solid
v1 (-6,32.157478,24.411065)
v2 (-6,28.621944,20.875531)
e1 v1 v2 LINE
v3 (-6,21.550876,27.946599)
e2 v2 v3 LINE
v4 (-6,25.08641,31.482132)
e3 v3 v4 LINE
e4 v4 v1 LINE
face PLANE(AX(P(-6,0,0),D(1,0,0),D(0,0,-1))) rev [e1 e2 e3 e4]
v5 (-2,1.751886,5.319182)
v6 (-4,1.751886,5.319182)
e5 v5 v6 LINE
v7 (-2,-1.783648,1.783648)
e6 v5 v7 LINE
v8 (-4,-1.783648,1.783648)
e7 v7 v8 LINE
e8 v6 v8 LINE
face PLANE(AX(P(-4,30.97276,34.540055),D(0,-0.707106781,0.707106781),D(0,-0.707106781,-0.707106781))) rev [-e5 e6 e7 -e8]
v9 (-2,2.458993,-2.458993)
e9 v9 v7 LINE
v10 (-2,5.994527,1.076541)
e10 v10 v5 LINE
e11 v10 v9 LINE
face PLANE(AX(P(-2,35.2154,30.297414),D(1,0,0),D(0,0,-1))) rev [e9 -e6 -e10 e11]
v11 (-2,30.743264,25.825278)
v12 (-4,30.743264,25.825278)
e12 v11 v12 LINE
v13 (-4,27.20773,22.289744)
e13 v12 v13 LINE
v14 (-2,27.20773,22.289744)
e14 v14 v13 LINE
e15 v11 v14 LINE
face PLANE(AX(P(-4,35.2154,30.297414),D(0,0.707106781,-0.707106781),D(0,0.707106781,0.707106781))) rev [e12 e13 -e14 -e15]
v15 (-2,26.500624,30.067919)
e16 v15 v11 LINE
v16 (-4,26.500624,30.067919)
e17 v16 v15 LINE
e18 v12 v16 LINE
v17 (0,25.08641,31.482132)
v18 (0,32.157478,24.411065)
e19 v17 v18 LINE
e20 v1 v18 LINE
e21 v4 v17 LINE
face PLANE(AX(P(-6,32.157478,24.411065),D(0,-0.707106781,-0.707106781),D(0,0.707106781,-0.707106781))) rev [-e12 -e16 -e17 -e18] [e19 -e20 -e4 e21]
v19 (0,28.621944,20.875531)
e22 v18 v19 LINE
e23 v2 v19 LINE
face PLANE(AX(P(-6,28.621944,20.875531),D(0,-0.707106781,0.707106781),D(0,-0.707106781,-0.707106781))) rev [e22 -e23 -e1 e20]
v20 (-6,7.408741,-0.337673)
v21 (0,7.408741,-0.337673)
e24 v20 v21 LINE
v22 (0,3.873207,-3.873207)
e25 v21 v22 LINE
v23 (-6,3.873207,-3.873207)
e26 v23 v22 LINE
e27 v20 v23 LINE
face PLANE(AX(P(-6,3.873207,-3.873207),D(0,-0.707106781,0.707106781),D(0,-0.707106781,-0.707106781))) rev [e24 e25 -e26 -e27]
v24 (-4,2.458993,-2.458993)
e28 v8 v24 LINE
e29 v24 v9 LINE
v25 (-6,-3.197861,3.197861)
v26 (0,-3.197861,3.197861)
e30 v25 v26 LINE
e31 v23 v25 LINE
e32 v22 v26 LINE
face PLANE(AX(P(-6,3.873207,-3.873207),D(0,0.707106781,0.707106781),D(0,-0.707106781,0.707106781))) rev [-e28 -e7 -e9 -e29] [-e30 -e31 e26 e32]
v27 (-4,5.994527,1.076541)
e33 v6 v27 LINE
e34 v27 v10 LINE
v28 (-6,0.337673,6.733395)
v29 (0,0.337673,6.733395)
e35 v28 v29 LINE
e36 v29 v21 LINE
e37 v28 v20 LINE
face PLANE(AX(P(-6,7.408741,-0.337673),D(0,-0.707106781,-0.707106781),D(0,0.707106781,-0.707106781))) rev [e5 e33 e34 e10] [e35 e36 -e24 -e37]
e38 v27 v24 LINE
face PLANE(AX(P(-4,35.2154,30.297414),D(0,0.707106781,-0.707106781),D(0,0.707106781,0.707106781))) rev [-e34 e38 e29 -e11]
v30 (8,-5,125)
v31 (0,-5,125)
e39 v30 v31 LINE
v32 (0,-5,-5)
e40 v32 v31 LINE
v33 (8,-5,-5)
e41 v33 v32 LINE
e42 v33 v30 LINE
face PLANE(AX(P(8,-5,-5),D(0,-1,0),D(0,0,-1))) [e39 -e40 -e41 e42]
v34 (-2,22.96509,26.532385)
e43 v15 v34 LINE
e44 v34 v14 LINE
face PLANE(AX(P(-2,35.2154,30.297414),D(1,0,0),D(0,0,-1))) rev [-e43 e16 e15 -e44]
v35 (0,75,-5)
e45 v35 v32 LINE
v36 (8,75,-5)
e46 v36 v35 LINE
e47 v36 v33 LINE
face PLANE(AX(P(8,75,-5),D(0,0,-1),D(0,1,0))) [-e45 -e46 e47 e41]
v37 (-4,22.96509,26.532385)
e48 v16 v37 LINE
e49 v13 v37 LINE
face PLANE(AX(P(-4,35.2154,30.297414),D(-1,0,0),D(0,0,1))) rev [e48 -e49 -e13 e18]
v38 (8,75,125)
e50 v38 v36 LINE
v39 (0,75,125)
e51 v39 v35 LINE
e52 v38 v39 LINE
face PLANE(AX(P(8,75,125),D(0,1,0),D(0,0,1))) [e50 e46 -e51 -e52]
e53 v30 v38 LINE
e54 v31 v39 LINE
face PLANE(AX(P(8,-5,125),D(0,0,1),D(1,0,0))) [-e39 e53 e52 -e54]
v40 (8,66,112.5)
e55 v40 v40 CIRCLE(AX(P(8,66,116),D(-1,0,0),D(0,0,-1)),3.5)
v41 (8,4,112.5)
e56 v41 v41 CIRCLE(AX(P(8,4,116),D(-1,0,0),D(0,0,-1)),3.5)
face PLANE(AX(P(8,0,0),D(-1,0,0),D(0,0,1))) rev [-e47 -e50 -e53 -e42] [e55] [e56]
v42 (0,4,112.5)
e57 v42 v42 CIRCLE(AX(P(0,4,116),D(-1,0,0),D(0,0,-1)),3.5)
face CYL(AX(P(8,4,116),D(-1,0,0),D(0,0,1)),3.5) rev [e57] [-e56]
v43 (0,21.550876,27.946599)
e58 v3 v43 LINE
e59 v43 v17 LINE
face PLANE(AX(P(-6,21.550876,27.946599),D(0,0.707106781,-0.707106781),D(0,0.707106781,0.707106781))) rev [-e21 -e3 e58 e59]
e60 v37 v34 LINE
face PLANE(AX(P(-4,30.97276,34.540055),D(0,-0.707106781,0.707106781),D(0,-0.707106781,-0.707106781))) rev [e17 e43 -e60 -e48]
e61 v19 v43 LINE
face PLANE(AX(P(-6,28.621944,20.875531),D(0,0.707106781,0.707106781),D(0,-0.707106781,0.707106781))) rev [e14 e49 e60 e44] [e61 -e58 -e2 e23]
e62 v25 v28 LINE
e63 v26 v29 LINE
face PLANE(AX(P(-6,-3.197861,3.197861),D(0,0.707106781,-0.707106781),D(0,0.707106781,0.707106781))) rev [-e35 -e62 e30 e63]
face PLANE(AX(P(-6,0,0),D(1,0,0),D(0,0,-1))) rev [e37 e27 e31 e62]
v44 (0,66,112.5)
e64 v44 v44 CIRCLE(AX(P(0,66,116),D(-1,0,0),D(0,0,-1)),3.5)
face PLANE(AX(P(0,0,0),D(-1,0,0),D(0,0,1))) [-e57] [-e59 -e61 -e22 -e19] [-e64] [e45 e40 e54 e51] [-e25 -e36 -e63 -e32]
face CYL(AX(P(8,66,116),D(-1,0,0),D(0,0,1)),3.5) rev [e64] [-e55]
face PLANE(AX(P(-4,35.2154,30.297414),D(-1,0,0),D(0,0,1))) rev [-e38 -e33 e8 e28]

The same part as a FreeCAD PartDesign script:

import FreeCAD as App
import Part
import Sketcher
from FreeCAD import Vector
Q = App.Units.Quantity


def add_polygon(sketch, points):
    """Adds a closed chain of lines whose ends are joined by coincident constraints."""
    first, n = sketch.GeometryCount, len(points)
    for a, b in zip(points, points[1:] + points[:1]):
        sketch.addGeometry(Part.LineSegment(App.Vector(*a, 0), App.Vector(*b, 0)), False)
    for i in range(n):
        sketch.addConstraint(Sketcher.Constraint("Coincident", first + i, 2, first + (i + 1) % n, 1))

doc = App.newDocument("Part")
body = doc.addObject("PartDesign::Body", "Body")

# Sketch on YZ plane
sketch1 = body.newObject("Sketcher::SketchObject", "Sketch")
sketch1.AttachmentSupport = (doc.getObject("YZ_Plane"), [""])
sketch1.MapMode = "FlatFace"
add_polygon(sketch1, [(75, 125), (75, -5), (-5, -5), (-5, 125)])  # lines 0-3
sketch1.addGeometry(Part.Circle(Vector(66, 116, 0), Vector(0, 0, 1), 3.5), False)  # 4
sketch1.addGeometry(Part.Circle(Vector(4, 116, 0), Vector(0, 0, 1), 3.5), False)  # 5
sketch1.addConstraint([
    Sketcher.Constraint("Vertical", 0),
    Sketcher.Constraint("Horizontal", 1),
    Sketcher.Constraint("Vertical", 2),
    Sketcher.Constraint("Horizontal", 3),
    Sketcher.Constraint("Equal", 4, 5),
    Sketcher.Constraint("Horizontal", 4, 3, 5, 3),
    Sketcher.Constraint("Diameter", 4, 7.0),
    Sketcher.Constraint("DistanceX", 1, 2, 1, 1, 80.0),
    Sketcher.Constraint("DistanceY", 0, 2, 0, 1, 130.0),
    Sketcher.Constraint("DistanceX", -1, 1, 4, 3, 66.0),
    Sketcher.Constraint("DistanceY", -1, 1, 4, 3, 116.0),
    Sketcher.Constraint("DistanceX", -1, 1, 5, 3, 4.0),
    Sketcher.Constraint("DistanceX", -1, 1, 0, 2, 75.0),
    Sketcher.Constraint("DistanceY", 0, 2, -1, 1, 5.0),
])
pad1 = body.newObject("PartDesign::Pad", "Pad")
pad1.Profile = sketch1
pad1.Length = 8

# Sketch on YZ plane
sketch2 = body.newObject("Sketcher::SketchObject", "Sketch001")
sketch2.AttachmentSupport = (doc.getObject("YZ_Plane"), [""])
sketch2.MapMode = "FlatFace"
add_polygon(sketch2, [(3.9, -3.9), (-3.2, 3.2), (0.3, 6.7), (7.4, -0.3)])  # lines 0-3
add_polygon(sketch2, [(28.6, 20.9), (21.6, 27.9), (25.1, 31.5), (32.2, 24.4)])  # lines 4-7
sketch2.addConstraint([
    Sketcher.Constraint("Perpendicular", 0, 1),
    Sketcher.Constraint("Perpendicular", 1, 2),
    Sketcher.Constraint("Perpendicular", 2, 3),
    Sketcher.Constraint("Perpendicular", 3, 4),
    Sketcher.Constraint("Perpendicular", 4, 5),
    Sketcher.Constraint("Perpendicular", 5, 6),
    Sketcher.Constraint("Perpendicular", 6, 7),
    Sketcher.Constraint("Equal", 2, 4),
    Sketcher.Constraint("Equal", 3, 5),
    Sketcher.Constraint("Angle", 0, Q("135 deg")),
    Sketcher.Constraint("Distance", 0, 10.0),
    Sketcher.Constraint("Distance", 1, 5.0),
    Sketcher.Constraint("DistanceY", -1, 1, 4, 2, 27.946599),
    Sketcher.Constraint("DistanceX", 0, 2, -1, 1, 3.197861),
    Sketcher.Constraint("DistanceY", -1, 1, 0, 2, 3.197861),
    Sketcher.Constraint("DistanceX", -1, 1, 5, 2, 25.08641),
])
pad2 = body.newObject("PartDesign::Pad", "Pad001")
pad2.Profile = sketch2
pad2.Length = 6
pad2.Reversed = True

# Sketch on an angled plane
sketch3 = body.newObject("Sketcher::SketchObject", "Sketch002")
sketch3.Placement = App.Placement(Vector(0, 0, 0), App.Rotation(Vector(1, 0, 0), Vector(0, -0.707106781, 0.707106781), Vector(0, -0.707106781, -0.707106781), "ZXY"))
add_polygon(sketch3, [(-4, 2.5), (-4, -3.5), (-2, -3.5), (-2, 2.5)])  # lines 0-3
sketch3.addConstraint([
    Sketcher.Constraint("Vertical", 0),
    Sketcher.Constraint("Horizontal", 1),
    Sketcher.Constraint("Vertical", 2),
    Sketcher.Constraint("Horizontal", 3),
    Sketcher.Constraint("DistanceX", 1, 1, 1, 2, 2.0),
    Sketcher.Constraint("DistanceY", 0, 2, 0, 1, 6.0),
    Sketcher.Constraint("DistanceX", 0, 2, -1, 1, 4.0),
    Sketcher.Constraint("DistanceY", 0, 2, -1, 1, 3.477541),
])
pocket1 = body.newObject("PartDesign::Pocket", "Pocket")
pocket1.Profile = sketch3
pocket1.Length = 40

doc.recompute()
